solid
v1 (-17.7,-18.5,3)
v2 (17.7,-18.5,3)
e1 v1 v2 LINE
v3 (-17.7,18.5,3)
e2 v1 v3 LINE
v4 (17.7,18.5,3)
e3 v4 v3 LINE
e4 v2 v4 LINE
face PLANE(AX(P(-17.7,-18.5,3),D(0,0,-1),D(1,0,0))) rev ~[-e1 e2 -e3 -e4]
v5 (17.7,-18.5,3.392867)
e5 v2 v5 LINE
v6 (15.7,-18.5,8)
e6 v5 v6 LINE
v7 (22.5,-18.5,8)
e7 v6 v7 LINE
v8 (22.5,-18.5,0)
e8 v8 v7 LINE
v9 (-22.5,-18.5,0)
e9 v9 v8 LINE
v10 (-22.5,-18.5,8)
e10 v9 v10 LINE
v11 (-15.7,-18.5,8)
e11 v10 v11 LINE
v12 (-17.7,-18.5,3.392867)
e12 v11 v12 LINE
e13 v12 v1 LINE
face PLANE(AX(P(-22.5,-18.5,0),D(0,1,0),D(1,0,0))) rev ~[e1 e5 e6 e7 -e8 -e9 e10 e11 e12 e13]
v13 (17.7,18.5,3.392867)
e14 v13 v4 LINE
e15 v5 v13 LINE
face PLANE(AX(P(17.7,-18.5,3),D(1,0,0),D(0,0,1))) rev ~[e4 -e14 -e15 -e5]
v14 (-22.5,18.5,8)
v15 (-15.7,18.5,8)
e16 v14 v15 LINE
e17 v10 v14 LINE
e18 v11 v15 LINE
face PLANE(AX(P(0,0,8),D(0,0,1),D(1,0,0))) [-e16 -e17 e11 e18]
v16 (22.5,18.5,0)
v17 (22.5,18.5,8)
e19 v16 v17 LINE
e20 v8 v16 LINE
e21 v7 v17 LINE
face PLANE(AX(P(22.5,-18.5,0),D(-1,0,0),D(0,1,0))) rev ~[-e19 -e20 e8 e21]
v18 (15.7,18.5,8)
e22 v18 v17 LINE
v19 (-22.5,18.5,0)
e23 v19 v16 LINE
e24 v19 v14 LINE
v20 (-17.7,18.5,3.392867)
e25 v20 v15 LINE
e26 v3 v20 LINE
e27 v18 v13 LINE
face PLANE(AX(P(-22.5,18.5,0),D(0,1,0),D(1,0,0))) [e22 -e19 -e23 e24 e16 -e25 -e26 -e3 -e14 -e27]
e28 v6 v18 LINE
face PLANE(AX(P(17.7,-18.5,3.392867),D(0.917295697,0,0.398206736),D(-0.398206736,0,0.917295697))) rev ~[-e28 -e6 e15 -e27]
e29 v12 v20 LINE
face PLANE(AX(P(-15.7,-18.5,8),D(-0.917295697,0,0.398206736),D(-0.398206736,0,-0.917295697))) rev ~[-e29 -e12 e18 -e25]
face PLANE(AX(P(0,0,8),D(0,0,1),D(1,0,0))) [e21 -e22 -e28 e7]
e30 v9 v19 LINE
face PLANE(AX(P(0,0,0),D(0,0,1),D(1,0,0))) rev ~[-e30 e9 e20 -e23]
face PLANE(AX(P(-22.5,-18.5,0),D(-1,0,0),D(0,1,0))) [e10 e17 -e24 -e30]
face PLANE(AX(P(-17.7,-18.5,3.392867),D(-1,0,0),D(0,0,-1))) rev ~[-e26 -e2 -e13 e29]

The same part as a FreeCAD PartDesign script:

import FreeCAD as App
import Part
import Sketcher
Q = App.Units.Quantity


def add_polygon(sketch, points):
    """Adds a closed chain of lines whose ends are joined by coincident constraints."""
    first, n = sketch.GeometryCount, len(points)
    for a, b in zip(points, points[1:] + points[:1]):
        sketch.addGeometry(Part.LineSegment(App.Vector(*a, 0), App.Vector(*b, 0)), False)
    for i in range(n):
        sketch.addConstraint(Sketcher.Constraint("Coincident", first + i, 2, first + (i + 1) % n, 1))

doc = App.newDocument("Part")
body = doc.addObject("PartDesign::Body", "Body")

# Sketch on XY plane
sketch1 = body.newObject("Sketcher::SketchObject", "Sketch")
sketch1.AttachmentSupport = (doc.getObject("XY_Plane"), [""])
sketch1.MapMode = "FlatFace"
add_polygon(sketch1, [(-22, 18), (-22, -18), (22, -18), (22, 18)])  # lines 0-3
sketch1.addConstraint([
    Sketcher.Constraint("Vertical", 0),
    Sketcher.Constraint("Horizontal", 1),
    Sketcher.Constraint("Vertical", 2),
    Sketcher.Constraint("Horizontal", 3),
    Sketcher.Constraint("Symmetric", 0, 2, 2, 2, -1, 1),
    Sketcher.Constraint("DistanceX", 1, 1, 1, 2, Q("45 mm")),
    Sketcher.Constraint("DistanceY", 0, 2, 0, 1, Q("37 mm")),
])
pad1 = body.newObject("PartDesign::Pad", "Pad")
pad1.Profile = sketch1
pad1.Length = 8

# Sketch on XZ plane
sketch2 = body.newObject("Sketcher::SketchObject", "Sketch001")
sketch2.AttachmentSupport = (doc.getObject("XZ_Plane"), [""])
sketch2.MapMode = "FlatFace"
sketch2.AttachmentOffset = App.Placement(App.Vector(0, 0, 18.5), App.Rotation())
add_polygon(sketch2, [(15.7, 8), (-15.7, 8), (-17.7, 3.39), (-17.7, 3), (17.7, 3), (17.7, 3.39)])  # lines 0-5
sketch2.addConstraint([
    Sketcher.Constraint("Horizontal", 0),
    Sketcher.Constraint("Vertical", 2),
    Sketcher.Constraint("Horizontal", 3),
    Sketcher.Constraint("Vertical", 4),
    Sketcher.Constraint("Symmetric", 1, 2, 4, 2, -2),
    Sketcher.Constraint("Equal", 1, 5),
    Sketcher.Constraint("DistanceX", 0, 2, 0, 1, Q("31.4 mm")),
    Sketcher.Constraint("DistanceX", 3, 1, 3, 2, Q("35.4 mm")),
    Sketcher.Constraint("DistanceY", -1, 1, 0, 2, Q("8 mm")),
    Sketcher.Constraint("DistanceY", -1, 1, 2, 2, Q("3 mm")),
    Sketcher.Constraint("DistanceY", 2, 2, 2, 1, Q("0.392867 mm")),
])
pocket1 = body.newObject("PartDesign::Pocket", "Pocket")
pocket1.Profile = sketch2
pocket1.Type = "ThroughAll"

doc.recompute()
